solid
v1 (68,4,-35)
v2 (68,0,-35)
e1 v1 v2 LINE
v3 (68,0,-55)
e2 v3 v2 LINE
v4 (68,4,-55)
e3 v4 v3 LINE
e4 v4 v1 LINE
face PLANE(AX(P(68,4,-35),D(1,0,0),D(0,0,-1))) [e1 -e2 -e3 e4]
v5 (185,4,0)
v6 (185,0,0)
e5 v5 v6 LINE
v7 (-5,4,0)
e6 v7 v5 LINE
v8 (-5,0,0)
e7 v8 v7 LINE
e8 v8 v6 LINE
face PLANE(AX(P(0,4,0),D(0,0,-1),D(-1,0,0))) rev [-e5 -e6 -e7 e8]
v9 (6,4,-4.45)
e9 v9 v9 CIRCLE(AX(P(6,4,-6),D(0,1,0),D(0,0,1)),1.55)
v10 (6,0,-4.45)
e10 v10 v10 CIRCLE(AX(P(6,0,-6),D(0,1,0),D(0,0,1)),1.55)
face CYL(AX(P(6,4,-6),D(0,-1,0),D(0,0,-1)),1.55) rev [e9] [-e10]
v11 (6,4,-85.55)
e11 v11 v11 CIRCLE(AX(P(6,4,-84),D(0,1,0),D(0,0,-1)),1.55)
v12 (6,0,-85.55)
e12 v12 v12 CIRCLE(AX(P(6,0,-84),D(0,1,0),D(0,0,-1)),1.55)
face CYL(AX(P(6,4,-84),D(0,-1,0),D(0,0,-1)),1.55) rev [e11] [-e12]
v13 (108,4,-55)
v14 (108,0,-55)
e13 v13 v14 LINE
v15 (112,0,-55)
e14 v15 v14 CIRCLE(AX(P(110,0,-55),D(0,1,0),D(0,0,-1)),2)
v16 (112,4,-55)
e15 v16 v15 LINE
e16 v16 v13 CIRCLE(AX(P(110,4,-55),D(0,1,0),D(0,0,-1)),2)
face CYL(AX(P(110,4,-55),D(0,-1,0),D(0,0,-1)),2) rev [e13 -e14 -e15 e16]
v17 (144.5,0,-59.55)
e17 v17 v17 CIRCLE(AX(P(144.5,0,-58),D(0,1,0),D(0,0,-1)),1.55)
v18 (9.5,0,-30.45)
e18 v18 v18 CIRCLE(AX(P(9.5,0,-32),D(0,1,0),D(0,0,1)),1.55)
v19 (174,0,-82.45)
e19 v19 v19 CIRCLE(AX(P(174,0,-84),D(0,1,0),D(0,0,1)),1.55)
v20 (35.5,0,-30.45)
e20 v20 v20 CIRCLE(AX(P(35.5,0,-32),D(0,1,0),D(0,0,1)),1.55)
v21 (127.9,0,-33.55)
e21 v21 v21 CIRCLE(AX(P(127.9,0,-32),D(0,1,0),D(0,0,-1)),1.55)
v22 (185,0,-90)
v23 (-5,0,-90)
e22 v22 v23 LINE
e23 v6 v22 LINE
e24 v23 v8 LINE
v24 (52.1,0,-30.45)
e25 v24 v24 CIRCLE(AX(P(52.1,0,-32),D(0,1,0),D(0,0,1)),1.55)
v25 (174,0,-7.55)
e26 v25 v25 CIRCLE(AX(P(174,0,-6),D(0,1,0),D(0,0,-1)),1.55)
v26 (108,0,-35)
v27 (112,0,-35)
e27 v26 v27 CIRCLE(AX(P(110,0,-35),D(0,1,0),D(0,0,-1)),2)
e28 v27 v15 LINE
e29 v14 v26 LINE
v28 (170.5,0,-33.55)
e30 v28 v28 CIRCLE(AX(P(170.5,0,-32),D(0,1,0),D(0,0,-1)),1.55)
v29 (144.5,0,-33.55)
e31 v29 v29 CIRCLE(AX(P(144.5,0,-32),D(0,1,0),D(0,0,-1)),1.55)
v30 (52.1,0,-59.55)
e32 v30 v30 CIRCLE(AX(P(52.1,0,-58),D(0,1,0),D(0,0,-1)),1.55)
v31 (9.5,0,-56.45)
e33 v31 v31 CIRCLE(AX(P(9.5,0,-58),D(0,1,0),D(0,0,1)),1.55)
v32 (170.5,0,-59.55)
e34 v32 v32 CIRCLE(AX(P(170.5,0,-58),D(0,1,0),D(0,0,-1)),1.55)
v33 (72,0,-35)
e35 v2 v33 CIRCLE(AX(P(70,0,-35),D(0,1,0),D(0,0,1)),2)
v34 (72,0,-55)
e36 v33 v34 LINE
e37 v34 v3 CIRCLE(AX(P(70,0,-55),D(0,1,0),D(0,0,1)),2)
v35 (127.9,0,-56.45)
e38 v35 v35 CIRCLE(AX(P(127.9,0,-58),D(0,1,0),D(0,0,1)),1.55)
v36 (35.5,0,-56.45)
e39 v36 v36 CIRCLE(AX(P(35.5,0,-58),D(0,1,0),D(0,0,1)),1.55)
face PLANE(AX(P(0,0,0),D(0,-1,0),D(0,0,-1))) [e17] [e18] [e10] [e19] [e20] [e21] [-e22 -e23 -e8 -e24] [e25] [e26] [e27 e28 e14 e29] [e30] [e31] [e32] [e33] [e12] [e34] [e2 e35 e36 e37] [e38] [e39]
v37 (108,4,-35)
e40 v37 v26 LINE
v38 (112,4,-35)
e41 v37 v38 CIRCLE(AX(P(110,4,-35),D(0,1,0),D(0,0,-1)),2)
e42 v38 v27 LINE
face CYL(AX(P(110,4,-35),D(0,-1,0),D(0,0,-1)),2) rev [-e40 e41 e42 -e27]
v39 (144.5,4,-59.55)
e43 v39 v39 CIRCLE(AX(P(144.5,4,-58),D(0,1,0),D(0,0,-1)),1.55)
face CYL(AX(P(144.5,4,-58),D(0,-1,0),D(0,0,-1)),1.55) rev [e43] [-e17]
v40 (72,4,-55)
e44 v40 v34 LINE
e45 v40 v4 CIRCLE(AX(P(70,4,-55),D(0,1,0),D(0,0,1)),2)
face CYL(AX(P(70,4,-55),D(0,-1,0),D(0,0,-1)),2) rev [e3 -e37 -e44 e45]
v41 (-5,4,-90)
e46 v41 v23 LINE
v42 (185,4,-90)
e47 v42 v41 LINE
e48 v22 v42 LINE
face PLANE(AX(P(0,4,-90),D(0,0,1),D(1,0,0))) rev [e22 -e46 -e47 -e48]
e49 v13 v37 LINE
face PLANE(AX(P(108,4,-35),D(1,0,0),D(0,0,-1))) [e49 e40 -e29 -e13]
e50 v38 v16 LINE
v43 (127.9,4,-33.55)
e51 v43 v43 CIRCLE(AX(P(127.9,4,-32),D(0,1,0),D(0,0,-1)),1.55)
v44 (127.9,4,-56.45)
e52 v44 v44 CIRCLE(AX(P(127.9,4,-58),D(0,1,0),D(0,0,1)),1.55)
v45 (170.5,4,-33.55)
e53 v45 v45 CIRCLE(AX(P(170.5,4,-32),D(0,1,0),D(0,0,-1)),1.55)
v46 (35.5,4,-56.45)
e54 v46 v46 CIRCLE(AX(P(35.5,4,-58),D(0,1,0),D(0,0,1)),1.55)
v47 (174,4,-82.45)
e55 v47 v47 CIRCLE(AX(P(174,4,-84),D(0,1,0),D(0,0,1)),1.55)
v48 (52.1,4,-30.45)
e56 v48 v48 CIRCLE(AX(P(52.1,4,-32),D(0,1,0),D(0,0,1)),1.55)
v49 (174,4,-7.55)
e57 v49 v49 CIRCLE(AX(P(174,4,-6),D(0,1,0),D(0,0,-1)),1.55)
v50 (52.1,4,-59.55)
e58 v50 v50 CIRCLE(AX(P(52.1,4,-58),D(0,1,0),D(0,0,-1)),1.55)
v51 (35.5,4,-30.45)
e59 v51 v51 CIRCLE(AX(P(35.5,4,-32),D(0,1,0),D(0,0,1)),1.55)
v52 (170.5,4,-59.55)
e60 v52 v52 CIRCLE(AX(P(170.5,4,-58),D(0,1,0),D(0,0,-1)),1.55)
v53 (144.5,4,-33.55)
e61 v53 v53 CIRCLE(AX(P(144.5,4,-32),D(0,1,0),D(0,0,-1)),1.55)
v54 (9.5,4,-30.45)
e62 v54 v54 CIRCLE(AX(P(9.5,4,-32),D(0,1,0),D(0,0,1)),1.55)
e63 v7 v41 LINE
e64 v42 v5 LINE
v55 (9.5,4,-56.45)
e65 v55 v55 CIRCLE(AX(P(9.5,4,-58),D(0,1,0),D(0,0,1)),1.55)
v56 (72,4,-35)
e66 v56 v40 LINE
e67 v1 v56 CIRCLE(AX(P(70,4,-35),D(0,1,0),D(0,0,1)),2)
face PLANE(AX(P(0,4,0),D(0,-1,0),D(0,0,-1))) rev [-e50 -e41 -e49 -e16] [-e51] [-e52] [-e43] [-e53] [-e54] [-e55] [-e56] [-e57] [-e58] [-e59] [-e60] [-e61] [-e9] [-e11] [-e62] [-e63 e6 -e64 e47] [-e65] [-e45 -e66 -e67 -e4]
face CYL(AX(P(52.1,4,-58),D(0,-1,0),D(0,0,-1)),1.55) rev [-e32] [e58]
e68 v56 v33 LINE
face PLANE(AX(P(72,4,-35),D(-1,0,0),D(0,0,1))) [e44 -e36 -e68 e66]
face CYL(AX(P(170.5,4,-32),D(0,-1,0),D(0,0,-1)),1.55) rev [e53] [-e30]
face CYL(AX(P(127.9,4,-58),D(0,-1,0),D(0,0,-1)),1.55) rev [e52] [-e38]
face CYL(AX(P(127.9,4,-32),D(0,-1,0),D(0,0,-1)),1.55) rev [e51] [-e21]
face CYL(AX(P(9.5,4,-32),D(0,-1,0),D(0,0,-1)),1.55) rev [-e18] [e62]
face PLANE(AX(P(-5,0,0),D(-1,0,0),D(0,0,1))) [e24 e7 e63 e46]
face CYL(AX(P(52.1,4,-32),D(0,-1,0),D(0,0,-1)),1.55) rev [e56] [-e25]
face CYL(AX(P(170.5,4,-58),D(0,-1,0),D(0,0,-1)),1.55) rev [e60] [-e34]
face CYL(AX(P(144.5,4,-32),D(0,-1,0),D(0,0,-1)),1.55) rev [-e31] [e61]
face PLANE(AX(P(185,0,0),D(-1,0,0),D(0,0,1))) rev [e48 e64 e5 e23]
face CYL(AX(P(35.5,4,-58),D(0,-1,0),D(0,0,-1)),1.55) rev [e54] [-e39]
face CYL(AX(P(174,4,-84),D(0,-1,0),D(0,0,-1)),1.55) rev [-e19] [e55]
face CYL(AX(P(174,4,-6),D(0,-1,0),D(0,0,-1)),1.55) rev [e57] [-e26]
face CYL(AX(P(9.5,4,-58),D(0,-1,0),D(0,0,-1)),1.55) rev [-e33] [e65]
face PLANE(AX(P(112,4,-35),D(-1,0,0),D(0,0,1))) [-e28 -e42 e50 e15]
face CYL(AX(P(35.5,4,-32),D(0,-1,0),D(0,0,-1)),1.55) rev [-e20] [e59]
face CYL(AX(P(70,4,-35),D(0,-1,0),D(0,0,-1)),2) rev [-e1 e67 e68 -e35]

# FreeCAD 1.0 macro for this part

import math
import FreeCAD as App
import Part
import Sketcher

V = App.Vector
Q = App.Units.Quantity


def add_polygon(sketch, points):
    """Adds a closed chain of lines whose ends are joined by coincident constraints."""
    first, n = sketch.GeometryCount, len(points)
    for a, b in zip(points, points[1:] + points[:1]):
        sketch.addGeometry(Part.LineSegment(App.Vector(*a, 0), App.Vector(*b, 0)), False)
    for i in range(n):
        sketch.addConstraint(Sketcher.Constraint("Coincident", first + i, 2, first + (i + 1) % n, 1))

doc = App.newDocument("Part")
body = doc.addObject("PartDesign::Body", "Body")

# Sketch on XZ plane
sketch1 = body.newObject("Sketcher::SketchObject", "Sketch")
sketch1.AttachmentSupport = (doc.getObject("XZ_Plane"), [""])
sketch1.MapMode = "FlatFace"
add_polygon(sketch1, [(0, -90), (0, 0), (180, 0), (180, -90)])  # lines 0-3
sketch1.addGeometry(Part.Circle(V(6, -6, 0), V(0, 0, 1), 1.6), False)  # 4
sketch1.addGeometry(Part.Circle(V(9.5, -32, 0), V(0, 0, 1), 1.6), False)  # 5
sketch1.addGeometry(Part.Circle(V(35.5, -32, 0), V(0, 0, 1), 1.6), False)  # 6
sketch1.addGeometry(Part.Circle(V(52.1, -32, 0), V(0, 0, 1), 1.6), False)  # 7
sketch1.addGeometry(Part.ArcOfCircle(Part.Circle(V(70, -35, 0), V(0, 0, 1), 2), math.radians(0), math.radians(180)), False)  # 8
sketch1.addGeometry(Part.LineSegment(V(68, -35, 0), V(68, -55, 0)), False)  # 9
sketch1.addGeometry(Part.ArcOfCircle(Part.Circle(V(70, -55, 0), V(0, 0, 1), 2), math.radians(180), math.radians(360)), False)  # 10
sketch1.addGeometry(Part.LineSegment(V(72, -55, 0), V(72, -35, 0)), False)  # 11
sketch1.addGeometry(Part.Circle(V(174, -6, 0), V(0, 0, 1), 1.6), False)  # 12
sketch1.addGeometry(Part.Circle(V(127.9, -32, 0), V(0, 0, 1), 1.6), False)  # 13
sketch1.addGeometry(Part.LineSegment(V(112, -55, 0), V(112, -35, 0)), False)  # 14
sketch1.addGeometry(Part.ArcOfCircle(Part.Circle(V(110, -35, 0), V(0, 0, 1), 2), math.radians(0), math.radians(180)), False)  # 15
sketch1.addGeometry(Part.LineSegment(V(108, -35, 0), V(108, -55, 0)), False)  # 16
sketch1.addGeometry(Part.ArcOfCircle(Part.Circle(V(110, -55, 0), V(0, 0, 1), 2), math.radians(180), math.radians(360)), False)  # 17
sketch1.addGeometry(Part.Circle(V(144.5, -32, 0), V(0, 0, 1), 1.6), False)  # 18
sketch1.addGeometry(Part.Circle(V(170.5, -32, 0), V(0, 0, 1), 1.6), False)  # 19
sketch1.addGeometry(Part.Circle(V(9.5, -58, 0), V(0, 0, 1), 1.6), False)  # 20
sketch1.addGeometry(Part.Circle(V(35.5, -58, 0), V(0, 0, 1), 1.6), False)  # 21
sketch1.addGeometry(Part.Circle(V(52.1, -58, 0), V(0, 0, 1), 1.6), False)  # 22
sketch1.addGeometry(Part.Circle(V(6, -84, 0), V(0, 0, 1), 1.6), False)  # 23
sketch1.addGeometry(Part.Circle(V(127.9, -58, 0), V(0, 0, 1), 1.6), False)  # 24
sketch1.addGeometry(Part.Circle(V(144.5, -58, 0), V(0, 0, 1), 1.6), False)  # 25
sketch1.addGeometry(Part.Circle(V(170.5, -58, 0), V(0, 0, 1), 1.6), False)  # 26
sketch1.addGeometry(Part.Circle(V(174, -84, 0), V(0, 0, 1), 1.6), False)  # 27
sketch1.addConstraint(Sketcher.Constraint("Tangent", 8, 2, 9, 1))
sketch1.addConstraint(Sketcher.Constraint("Tangent", 9, 2, 10, 1))
sketch1.addConstraint(Sketcher.Constraint("Tangent", 10, 2, 11, 1))
sketch1.addConstraint(Sketcher.Constraint("Tangent", 11, 2, 8, 1))
sketch1.addConstraint(Sketcher.Constraint("Tangent", 14, 2, 15, 1))
sketch1.addConstraint(Sketcher.Constraint("Tangent", 15, 2, 16, 1))
sketch1.addConstraint(Sketcher.Constraint("Tangent", 16, 2, 17, 1))
sketch1.addConstraint(Sketcher.Constraint("Tangent", 17, 2, 14, 1))
sketch1.addConstraint(Sketcher.Constraint("Vertical", 0))
sketch1.addConstraint(Sketcher.Constraint("Horizontal", 1))
sketch1.addConstraint(Sketcher.Constraint("Vertical", 2))
sketch1.addConstraint(Sketcher.Constraint("Horizontal", 3))
sketch1.addConstraint(Sketcher.Constraint("Vertical", 9))
sketch1.addConstraint(Sketcher.Constraint("Vertical", 11))
sketch1.addConstraint(Sketcher.Constraint("Vertical", 14))
sketch1.addConstraint(Sketcher.Constraint("Vertical", 16))
sketch1.addConstraint(Sketcher.Constraint("Coincident", 0, 2, -1, 1))
sketch1.addConstraint(Sketcher.Constraint("Equal", 4, 5))
sketch1.addConstraint(Sketcher.Constraint("Equal", 5, 6))
sketch1.addConstraint(Sketcher.Constraint("Equal", 6, 7))
sketch1.addConstraint(Sketcher.Constraint("Equal", 7, 12))
sketch1.addConstraint(Sketcher.Constraint("Equal", 12, 13))
sketch1.addConstraint(Sketcher.Constraint("Equal", 10, 15))
sketch1.addConstraint(Sketcher.Constraint("Equal", 13, 18))
sketch1.addConstraint(Sketcher.Constraint("Equal", 18, 19))
sketch1.addConstraint(Sketcher.Constraint("Equal", 19, 20))
sketch1.addConstraint(Sketcher.Constraint("Equal", 20, 21))
sketch1.addConstraint(Sketcher.Constraint("Equal", 21, 22))
sketch1.addConstraint(Sketcher.Constraint("Equal", 22, 23))
sketch1.addConstraint(Sketcher.Constraint("Equal", 23, 24))
sketch1.addConstraint(Sketcher.Constraint("Equal", 24, 25))
sketch1.addConstraint(Sketcher.Constraint("Equal", 25, 26))
sketch1.addConstraint(Sketcher.Constraint("Equal", 26, 27))
sketch1.addConstraint(Sketcher.Constraint("Horizontal", 5, 3, 6, 3))
sketch1.addConstraint(Sketcher.Constraint("Horizontal", 6, 3, 7, 3))
sketch1.addConstraint(Sketcher.Constraint("Horizontal", 4, 3, 12, 3))
sketch1.addConstraint(Sketcher.Constraint("Horizontal", 7, 3, 13, 3))
sketch1.addConstraint(Sketcher.Constraint("Horizontal", 8, 3, 15, 3))
sketch1.addConstraint(Sketcher.Constraint("Horizontal", 10, 3, 17, 3))
sketch1.addConstraint(Sketcher.Constraint("Horizontal", 13, 3, 18, 3))
sketch1.addConstraint(Sketcher.Constraint("Horizontal", 18, 3, 19, 3))
sketch1.addConstraint(Sketcher.Constraint("Horizontal", 20, 3, 21, 3))
sketch1.addConstraint(Sketcher.Constraint("Horizontal", 21, 3, 22, 3))
sketch1.addConstraint(Sketcher.Constraint("Horizontal", 22, 3, 24, 3))
sketch1.addConstraint(Sketcher.Constraint("Horizontal", 24, 3, 25, 3))
sketch1.addConstraint(Sketcher.Constraint("Horizontal", 25, 3, 26, 3))
sketch1.addConstraint(Sketcher.Constraint("Horizontal", 23, 3, 27, 3))
sketch1.addConstraint(Sketcher.Constraint("Vertical", 5, 3, 20, 3))
sketch1.addConstraint(Sketcher.Constraint("Vertical", 6, 3, 21, 3))
sketch1.addConstraint(Sketcher.Constraint("Vertical", 7, 3, 22, 3))
sketch1.addConstraint(Sketcher.Constraint("Vertical", 4, 3, 23, 3))
sketch1.addConstraint(Sketcher.Constraint("Vertical", 13, 3, 24, 3))
sketch1.addConstraint(Sketcher.Constraint("Vertical", 18, 3, 25, 3))
sketch1.addConstraint(Sketcher.Constraint("Vertical", 19, 3, 26, 3))
sketch1.addConstraint(Sketcher.Constraint("Vertical", 12, 3, 27, 3))
sketch1.addConstraint(Sketcher.Constraint("Radius", 8, Q("2 mm")))
sketch1.addConstraint(Sketcher.Constraint("Diameter", 4, Q("3.1 mm")))
sketch1.addConstraint(Sketcher.Constraint("DistanceX", 1, 1, 1, 2, Q("180 mm")))
sketch1.addConstraint(Sketcher.Constraint("DistanceY", 0, 1, 0, 2, Q("90 mm")))
sketch1.addConstraint(Sketcher.Constraint("DistanceY", 9, 2, 9, 1, Q("20 mm")))
sketch1.addConstraint(Sketcher.Constraint("DistanceX", -1, 1, 4, 3, Q("6 mm")))
sketch1.addConstraint(Sketcher.Constraint("DistanceY", 4, 3, -1, 1, Q("6 mm")))
sketch1.addConstraint(Sketcher.Constraint("DistanceY", 5, 3, -1, 1, Q("32 mm")))
sketch1.addConstraint(Sketcher.Constraint("DistanceX", -1, 1, 8, 3, Q("70 mm")))
sketch1.addConstraint(Sketcher.Constraint("DistanceY", 8, 3, -1, 1, Q("35 mm")))
sketch1.addConstraint(Sketcher.Constraint("DistanceX", -1, 1, 12, 3, Q("174 mm")))
sketch1.addConstraint(Sketcher.Constraint("DistanceX", -1, 1, 15, 3, Q("110 mm")))
sketch1.addConstraint(Sketcher.Constraint("DistanceY", 20, 3, -1, 1, Q("58 mm")))
sketch1.addConstraint(Sketcher.Constraint("DistanceY", 23, 3, -1, 1, Q("84 mm")))
sketch1.addConstraint(Sketcher.Constraint("DistanceX", 5, 3, 6, 3, Q("26 mm")))
sketch1.addConstraint(Sketcher.Constraint("DistanceX", 18, 3, 19, 3, Q("26 mm")))
sketch1.addConstraint(Sketcher.Constraint("DistanceX", -1, 1, 5, 3, Q("9.5 mm")))
sketch1.addConstraint(Sketcher.Constraint("DistanceX", -1, 1, 7, 3, Q("52.1 mm")))
sketch1.addConstraint(Sketcher.Constraint("DistanceX", -1, 1, 13, 3, Q("127.9 mm")))
sketch1.addConstraint(Sketcher.Constraint("DistanceX", -1, 1, 18, 3, Q("144.5 mm")))
pad1 = body.newObject("PartDesign::Pad", "Pad")
pad1.Profile = sketch1
pad1.Length = 4
pad1.Reversed = True

# Sketch on YZ plane
sketch2 = body.newObject("Sketcher::SketchObject", "Sketch001")
sketch2.AttachmentSupport = (doc.getObject("YZ_Plane"), [""])
sketch2.MapMode = "FlatFace"
add_polygon(sketch2, [(4, -90), (0, -90), (0, 0), (4, 0)])  # lines 0-3
sketch2.addConstraint(Sketcher.Constraint("Horizontal", 0))
sketch2.addConstraint(Sketcher.Constraint("Vertical", 1))
sketch2.addConstraint(Sketcher.Constraint("Horizontal", 2))
sketch2.addConstraint(Sketcher.Constraint("Vertical", 3))
sketch2.addConstraint(Sketcher.Constraint("Coincident", 1, 2, -1, 1))
sketch2.addConstraint(Sketcher.Constraint("DistanceX", 0, 2, 0, 1, Q("4 mm")))
sketch2.addConstraint(Sketcher.Constraint("DistanceY", 1, 1, 1, 2, Q("90 mm")))
pad2 = body.newObject("PartDesign::Pad", "Pad001")
pad2.Profile = sketch2
pad2.Length = 5
pad2.Reversed = True

# Sketch on YZ plane
sketch3 = body.newObject("Sketcher::SketchObject", "Sketch002")
sketch3.AttachmentSupport = (doc.getObject("YZ_Plane"), [""])
sketch3.MapMode = "FlatFace"
sketch3.AttachmentOffset = App.Placement(V(0, 0, 180), App.Rotation())
add_polygon(sketch3, [(4, 0), (0, 0), (0, -90), (4, -90)])  # lines 0-3
sketch3.addConstraint(Sketcher.Constraint("Horizontal", 0))
sketch3.addConstraint(Sketcher.Constraint("Vertical", 1))
sketch3.addConstraint(Sketcher.Constraint("Horizontal", 2))
sketch3.addConstraint(Sketcher.Constraint("Vertical", 3))
sketch3.addConstraint(Sketcher.Constraint("Coincident", 0, 2, -1, 1))
sketch3.addConstraint(Sketcher.Constraint("DistanceX", 0, 2, 0, 1, Q("4 mm")))
sketch3.addConstraint(Sketcher.Constraint("DistanceY", 1, 2, 1, 1, Q("90 mm")))
pad3 = body.newObject("PartDesign::Pad", "Pad002")
pad3.Profile = sketch3
pad3.Length = 5

doc.recompute()
